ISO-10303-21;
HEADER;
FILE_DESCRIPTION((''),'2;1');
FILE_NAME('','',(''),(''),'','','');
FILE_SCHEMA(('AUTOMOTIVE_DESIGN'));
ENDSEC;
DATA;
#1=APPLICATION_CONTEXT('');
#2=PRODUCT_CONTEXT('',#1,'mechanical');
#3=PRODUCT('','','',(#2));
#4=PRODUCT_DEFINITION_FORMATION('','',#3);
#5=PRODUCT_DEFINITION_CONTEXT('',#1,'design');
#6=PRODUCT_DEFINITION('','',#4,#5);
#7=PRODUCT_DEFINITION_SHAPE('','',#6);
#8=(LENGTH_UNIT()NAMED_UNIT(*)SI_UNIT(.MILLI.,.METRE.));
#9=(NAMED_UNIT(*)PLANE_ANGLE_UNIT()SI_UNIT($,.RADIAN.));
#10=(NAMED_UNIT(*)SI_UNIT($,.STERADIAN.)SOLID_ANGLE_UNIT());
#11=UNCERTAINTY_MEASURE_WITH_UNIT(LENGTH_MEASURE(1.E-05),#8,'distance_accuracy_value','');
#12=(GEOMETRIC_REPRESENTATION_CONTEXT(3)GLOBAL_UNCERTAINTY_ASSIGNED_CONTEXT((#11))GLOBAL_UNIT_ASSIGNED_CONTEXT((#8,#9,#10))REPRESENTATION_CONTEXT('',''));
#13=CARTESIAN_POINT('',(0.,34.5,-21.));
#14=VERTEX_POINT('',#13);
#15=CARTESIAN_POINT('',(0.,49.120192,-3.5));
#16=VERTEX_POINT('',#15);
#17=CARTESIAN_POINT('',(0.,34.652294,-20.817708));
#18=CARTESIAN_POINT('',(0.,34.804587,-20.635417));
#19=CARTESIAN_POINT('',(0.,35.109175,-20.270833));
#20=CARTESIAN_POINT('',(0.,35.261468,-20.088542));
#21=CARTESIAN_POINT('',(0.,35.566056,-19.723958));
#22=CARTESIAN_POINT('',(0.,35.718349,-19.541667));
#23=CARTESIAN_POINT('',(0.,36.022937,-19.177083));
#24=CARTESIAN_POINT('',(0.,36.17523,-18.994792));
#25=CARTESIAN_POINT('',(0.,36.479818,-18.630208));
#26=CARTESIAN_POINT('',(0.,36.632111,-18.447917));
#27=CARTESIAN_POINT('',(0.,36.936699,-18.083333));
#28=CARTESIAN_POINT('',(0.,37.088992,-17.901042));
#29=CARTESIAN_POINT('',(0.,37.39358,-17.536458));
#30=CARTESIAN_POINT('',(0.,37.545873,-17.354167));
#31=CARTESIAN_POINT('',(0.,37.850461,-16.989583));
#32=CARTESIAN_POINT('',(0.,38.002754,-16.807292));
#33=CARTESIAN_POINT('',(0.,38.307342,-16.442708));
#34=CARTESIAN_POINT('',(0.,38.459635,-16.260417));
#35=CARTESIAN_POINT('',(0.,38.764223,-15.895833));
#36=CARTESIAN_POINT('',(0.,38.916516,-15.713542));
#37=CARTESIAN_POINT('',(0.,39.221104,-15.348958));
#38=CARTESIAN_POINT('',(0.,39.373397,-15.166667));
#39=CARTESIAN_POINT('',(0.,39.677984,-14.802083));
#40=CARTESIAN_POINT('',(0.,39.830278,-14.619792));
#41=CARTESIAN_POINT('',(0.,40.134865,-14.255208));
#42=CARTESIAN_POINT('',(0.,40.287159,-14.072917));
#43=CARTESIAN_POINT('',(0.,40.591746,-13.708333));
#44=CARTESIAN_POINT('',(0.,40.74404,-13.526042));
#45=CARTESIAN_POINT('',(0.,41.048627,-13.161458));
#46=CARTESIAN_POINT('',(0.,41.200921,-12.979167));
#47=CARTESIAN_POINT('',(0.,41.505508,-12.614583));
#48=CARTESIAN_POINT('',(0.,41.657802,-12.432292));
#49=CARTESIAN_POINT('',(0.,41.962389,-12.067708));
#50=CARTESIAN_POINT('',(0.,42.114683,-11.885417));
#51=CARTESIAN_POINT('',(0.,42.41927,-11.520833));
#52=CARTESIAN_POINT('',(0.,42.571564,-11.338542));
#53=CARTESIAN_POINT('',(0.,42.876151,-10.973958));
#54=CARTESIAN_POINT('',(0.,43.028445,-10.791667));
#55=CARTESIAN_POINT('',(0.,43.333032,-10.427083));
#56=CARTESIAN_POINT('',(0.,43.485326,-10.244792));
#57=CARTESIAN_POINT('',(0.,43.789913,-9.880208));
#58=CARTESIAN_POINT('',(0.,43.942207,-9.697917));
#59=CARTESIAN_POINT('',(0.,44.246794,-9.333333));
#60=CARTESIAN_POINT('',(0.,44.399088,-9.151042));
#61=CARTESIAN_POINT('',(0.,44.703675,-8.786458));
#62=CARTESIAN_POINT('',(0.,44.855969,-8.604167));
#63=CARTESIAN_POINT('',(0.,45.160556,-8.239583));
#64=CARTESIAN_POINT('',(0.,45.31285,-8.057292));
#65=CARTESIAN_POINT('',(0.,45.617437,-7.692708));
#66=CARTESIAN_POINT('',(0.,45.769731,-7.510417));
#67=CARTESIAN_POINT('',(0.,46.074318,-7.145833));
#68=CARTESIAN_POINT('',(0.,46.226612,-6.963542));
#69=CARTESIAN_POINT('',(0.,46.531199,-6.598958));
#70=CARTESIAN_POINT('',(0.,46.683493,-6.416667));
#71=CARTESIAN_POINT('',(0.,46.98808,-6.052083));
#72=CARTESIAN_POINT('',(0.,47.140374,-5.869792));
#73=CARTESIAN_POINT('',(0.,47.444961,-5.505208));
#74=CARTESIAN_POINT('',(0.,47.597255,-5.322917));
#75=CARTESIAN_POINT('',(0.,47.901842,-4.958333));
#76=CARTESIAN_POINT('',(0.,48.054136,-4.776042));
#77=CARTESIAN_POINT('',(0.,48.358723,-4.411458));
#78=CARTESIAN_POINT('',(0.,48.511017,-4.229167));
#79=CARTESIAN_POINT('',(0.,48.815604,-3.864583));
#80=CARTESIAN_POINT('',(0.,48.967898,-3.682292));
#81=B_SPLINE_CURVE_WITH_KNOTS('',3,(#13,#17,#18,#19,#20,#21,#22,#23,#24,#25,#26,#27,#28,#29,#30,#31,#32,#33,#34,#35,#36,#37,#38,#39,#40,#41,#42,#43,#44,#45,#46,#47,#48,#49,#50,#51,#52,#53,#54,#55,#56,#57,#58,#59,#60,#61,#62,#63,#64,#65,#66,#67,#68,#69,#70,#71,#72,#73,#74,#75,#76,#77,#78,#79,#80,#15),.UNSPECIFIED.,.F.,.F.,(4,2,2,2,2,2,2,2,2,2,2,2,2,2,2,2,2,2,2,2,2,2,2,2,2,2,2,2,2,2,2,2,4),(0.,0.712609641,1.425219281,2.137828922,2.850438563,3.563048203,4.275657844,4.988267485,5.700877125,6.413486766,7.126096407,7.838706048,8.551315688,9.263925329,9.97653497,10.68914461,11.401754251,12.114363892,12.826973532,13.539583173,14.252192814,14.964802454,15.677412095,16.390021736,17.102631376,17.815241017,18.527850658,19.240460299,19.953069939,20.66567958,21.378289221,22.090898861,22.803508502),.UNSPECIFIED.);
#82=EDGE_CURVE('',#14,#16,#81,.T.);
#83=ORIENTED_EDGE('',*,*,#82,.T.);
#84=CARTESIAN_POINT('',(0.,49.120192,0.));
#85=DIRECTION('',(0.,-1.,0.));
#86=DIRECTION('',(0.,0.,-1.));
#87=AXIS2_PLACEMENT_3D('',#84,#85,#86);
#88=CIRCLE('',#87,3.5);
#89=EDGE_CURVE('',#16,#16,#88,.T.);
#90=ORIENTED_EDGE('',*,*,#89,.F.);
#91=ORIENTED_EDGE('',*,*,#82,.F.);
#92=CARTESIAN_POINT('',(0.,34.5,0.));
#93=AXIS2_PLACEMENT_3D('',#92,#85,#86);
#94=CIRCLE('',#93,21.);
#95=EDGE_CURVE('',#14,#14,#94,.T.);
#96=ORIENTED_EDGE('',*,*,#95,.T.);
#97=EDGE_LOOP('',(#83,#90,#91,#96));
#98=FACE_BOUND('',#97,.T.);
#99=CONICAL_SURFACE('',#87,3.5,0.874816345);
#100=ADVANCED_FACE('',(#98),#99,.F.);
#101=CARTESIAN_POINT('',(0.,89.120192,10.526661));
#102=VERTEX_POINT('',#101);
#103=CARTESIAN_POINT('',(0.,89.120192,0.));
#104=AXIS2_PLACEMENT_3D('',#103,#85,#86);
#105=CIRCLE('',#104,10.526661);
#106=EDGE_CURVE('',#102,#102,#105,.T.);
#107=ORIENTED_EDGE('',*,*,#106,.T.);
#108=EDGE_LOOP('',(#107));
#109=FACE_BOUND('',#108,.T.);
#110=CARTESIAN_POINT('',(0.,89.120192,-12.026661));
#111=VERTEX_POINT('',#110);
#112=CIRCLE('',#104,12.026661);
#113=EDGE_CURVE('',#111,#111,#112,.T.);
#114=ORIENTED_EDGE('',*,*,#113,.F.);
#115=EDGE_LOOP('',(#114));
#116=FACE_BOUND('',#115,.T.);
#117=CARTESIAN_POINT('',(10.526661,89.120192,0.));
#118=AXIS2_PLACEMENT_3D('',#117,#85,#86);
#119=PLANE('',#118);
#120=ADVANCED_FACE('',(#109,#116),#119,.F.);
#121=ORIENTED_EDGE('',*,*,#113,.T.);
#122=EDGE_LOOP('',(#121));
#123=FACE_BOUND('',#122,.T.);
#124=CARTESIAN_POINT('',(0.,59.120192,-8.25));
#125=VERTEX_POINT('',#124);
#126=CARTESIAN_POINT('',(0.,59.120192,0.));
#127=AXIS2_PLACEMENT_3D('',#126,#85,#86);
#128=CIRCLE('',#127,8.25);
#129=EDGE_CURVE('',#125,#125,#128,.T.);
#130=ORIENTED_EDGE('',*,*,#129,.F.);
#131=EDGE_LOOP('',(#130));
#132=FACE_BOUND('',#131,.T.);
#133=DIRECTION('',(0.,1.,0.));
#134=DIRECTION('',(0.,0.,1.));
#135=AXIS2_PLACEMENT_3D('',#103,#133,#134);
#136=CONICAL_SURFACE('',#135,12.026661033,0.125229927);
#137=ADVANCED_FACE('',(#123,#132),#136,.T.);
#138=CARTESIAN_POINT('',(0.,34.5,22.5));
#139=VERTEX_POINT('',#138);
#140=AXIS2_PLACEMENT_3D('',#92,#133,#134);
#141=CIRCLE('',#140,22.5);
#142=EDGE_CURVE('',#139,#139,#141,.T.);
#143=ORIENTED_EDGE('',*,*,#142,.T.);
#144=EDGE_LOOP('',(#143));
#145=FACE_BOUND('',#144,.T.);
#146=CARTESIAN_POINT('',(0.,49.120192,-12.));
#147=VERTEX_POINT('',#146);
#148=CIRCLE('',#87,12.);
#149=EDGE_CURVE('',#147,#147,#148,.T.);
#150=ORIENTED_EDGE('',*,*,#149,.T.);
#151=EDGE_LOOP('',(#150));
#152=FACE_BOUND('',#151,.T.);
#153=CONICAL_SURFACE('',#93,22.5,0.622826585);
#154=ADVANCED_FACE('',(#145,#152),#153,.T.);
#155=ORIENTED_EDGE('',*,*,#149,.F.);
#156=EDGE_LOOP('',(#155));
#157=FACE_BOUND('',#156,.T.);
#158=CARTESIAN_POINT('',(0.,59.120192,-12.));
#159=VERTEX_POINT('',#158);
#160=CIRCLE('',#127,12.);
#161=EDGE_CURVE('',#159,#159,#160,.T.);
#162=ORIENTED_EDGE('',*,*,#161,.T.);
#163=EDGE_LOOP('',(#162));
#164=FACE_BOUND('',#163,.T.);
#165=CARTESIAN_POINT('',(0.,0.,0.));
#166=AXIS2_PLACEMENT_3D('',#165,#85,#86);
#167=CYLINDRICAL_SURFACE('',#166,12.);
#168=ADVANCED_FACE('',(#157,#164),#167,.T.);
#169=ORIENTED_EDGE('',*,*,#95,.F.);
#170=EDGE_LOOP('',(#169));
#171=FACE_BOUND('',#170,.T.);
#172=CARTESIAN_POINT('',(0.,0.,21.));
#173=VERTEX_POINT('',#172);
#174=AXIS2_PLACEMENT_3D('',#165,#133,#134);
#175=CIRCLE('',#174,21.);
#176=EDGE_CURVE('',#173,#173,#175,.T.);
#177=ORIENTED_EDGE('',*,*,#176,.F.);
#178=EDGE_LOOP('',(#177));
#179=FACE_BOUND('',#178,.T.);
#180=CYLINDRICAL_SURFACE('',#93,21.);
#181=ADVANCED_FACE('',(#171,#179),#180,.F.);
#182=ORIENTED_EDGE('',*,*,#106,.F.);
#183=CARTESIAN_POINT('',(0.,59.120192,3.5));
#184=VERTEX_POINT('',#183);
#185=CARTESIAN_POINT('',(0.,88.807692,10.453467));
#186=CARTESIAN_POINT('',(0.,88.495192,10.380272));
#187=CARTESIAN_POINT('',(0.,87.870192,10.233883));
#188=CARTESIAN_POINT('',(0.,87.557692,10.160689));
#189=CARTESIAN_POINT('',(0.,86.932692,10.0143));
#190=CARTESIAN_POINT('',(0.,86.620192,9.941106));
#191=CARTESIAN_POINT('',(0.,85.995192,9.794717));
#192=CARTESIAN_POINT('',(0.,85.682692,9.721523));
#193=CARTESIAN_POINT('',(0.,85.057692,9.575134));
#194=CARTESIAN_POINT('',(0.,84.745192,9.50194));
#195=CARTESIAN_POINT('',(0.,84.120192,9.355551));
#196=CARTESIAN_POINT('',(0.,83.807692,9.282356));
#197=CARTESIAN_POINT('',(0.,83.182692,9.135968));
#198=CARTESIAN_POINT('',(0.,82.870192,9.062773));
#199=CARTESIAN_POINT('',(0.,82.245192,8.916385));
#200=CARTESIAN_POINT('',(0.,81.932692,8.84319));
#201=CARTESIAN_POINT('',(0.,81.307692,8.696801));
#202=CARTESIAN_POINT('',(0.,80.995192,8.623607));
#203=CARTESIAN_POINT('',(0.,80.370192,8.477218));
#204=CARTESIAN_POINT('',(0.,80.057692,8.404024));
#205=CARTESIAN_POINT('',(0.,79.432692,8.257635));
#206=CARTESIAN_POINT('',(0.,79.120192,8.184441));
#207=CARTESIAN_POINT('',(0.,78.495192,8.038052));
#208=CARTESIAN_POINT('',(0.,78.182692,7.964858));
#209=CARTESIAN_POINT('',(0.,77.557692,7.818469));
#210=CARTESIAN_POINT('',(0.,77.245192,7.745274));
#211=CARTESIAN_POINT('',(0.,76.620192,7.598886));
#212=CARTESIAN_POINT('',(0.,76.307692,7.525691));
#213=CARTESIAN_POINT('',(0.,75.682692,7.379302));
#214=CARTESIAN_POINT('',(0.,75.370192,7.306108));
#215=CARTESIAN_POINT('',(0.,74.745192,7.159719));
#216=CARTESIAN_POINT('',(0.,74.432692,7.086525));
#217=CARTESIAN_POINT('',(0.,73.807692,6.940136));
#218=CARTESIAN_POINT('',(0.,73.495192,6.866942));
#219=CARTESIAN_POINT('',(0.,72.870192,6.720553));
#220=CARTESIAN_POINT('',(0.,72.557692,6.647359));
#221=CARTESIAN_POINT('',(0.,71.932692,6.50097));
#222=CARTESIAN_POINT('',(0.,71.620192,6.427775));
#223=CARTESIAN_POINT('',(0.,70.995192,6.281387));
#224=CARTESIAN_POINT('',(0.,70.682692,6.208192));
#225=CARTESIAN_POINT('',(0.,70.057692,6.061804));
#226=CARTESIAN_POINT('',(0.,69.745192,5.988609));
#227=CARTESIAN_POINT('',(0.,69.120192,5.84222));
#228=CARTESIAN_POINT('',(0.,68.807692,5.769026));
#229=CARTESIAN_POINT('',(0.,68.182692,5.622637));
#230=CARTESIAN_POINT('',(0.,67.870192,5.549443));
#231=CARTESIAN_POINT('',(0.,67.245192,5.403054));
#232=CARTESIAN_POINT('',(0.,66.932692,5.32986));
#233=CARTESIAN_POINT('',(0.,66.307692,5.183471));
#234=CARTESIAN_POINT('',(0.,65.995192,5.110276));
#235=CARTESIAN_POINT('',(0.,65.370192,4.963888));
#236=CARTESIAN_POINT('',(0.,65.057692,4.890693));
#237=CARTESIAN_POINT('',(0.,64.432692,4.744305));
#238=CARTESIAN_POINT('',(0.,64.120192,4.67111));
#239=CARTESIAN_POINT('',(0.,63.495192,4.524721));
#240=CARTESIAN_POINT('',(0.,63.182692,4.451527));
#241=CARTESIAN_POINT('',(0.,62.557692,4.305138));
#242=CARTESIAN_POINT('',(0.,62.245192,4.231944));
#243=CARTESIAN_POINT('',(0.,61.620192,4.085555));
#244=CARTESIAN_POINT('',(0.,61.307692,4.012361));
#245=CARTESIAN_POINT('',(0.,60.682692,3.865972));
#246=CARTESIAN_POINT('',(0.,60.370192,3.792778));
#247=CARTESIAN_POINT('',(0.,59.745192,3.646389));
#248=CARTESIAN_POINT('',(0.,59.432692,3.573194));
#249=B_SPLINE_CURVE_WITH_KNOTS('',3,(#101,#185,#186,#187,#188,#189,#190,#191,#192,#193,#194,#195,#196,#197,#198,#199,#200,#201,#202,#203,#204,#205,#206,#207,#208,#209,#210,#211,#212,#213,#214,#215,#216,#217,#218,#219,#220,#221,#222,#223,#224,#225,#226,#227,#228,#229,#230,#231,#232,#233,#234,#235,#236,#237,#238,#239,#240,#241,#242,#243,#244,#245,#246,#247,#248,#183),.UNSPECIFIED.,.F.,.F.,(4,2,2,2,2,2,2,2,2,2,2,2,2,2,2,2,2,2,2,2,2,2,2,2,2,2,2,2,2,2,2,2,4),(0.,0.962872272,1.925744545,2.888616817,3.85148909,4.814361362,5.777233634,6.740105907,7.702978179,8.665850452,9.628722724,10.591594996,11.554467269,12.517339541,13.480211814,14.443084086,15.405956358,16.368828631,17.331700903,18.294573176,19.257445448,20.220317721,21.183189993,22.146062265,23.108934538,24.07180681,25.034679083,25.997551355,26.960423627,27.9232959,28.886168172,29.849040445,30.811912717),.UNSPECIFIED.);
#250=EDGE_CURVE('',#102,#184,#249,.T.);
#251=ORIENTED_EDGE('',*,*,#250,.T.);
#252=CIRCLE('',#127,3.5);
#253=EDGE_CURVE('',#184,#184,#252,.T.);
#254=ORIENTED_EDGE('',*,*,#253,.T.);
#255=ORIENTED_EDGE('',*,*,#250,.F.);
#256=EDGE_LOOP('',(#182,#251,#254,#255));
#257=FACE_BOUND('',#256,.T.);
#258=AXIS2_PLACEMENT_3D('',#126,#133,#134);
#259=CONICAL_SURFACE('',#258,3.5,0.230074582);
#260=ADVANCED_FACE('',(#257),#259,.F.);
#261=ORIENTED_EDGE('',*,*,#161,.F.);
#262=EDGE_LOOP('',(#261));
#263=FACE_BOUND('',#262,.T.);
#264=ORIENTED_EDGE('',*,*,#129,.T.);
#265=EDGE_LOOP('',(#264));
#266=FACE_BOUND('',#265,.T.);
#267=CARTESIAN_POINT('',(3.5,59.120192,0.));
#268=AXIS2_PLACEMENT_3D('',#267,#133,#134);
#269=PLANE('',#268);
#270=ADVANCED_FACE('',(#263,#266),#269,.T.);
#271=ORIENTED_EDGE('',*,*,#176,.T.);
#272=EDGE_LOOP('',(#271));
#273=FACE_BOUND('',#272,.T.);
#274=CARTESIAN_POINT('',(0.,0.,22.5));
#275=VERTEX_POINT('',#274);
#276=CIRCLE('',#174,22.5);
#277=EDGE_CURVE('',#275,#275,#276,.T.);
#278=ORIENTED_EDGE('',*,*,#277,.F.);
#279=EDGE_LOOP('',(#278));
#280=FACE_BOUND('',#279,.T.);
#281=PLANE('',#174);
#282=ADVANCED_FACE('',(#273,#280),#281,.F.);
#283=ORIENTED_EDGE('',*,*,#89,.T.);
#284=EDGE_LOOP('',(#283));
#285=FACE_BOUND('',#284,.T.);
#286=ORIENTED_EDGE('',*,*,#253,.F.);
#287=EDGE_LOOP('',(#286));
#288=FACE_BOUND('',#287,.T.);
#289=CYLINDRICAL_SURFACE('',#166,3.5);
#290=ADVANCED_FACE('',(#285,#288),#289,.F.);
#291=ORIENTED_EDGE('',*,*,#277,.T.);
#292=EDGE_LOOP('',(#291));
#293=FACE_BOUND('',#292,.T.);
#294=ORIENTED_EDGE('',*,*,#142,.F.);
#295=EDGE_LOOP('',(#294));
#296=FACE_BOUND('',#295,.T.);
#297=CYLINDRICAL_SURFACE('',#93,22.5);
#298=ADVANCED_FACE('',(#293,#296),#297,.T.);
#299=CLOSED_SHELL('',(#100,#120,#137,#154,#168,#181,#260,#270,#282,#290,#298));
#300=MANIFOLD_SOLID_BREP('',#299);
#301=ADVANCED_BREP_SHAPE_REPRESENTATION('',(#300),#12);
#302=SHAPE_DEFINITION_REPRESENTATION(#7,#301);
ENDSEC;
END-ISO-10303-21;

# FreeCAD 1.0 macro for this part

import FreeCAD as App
import Part
import Sketcher

V = App.Vector
Q = App.Units.Quantity


def add_polygon(sketch, points):
    """Adds a closed chain of lines whose ends are joined by coincident constraints."""
    first, n = sketch.GeometryCount, len(points)
    for a, b in zip(points, points[1:] + points[:1]):
        sketch.addGeometry(Part.LineSegment(App.Vector(*a, 0), App.Vector(*b, 0)), False)
    for i in range(n):
        sketch.addConstraint(Sketcher.Constraint("Coincident", first + i, 2, first + (i + 1) % n, 1))

doc = App.newDocument("Part")
params = doc.addObject("Spreadsheet::Sheet", "Params")
for row, (alias, value) in enumerate([
    ("sketch1_diameter", "45 mm"),
    ("sketch1_diameter2", "42 mm"),
    ("pad1_length", "34.5 mm"),
    ("sketch2_height", "10 mm"),
    ("sketch2_length", "18 mm"),
    ("sketch2_width", "8.5 mm"),
    ("sketch2_width2", "1.5 mm"),
    ("revolution_angle", "360 deg"),
    ("sketch3_width", "1.5 mm"),
    ("sketch3_width2", "4.75 mm"),
    ("revolution2_angle", "360 deg"),
], start=1):
    params.set(f"A{row}", alias)
    params.set(f"B{row}", "=" + value)
    params.setAlias(f"B{row}", alias)

body = doc.addObject("PartDesign::Body", "Body")

sketch1 = body.newObject("Sketcher::SketchObject", "Sketch")
sketch1.AttachmentSupport = (doc.getObject("XZ_Plane"), [""])
sketch1.MapMode = "FlatFace"
sketch1.addGeometry(Part.Circle(V(0, 0, 0), V(0, 0, 1), 22), False)
sketch1.addGeometry(Part.Circle(V(0, 0, 0), V(0, 0, 1), 21), False)
sketch1.addConstraint(Sketcher.Constraint("Coincident", 0, 3, -1, 1))
sketch1.addConstraint(Sketcher.Constraint("Coincident", 1, 3, -1, 1))
sketch1.addConstraint(Sketcher.Constraint("Diameter", 0, Q("45 mm")))
sketch1.addConstraint(Sketcher.Constraint("Diameter", 1, Q("42 mm")))
sketch1.setExpression("Constraints[2]", "Params.sketch1_diameter")
sketch1.setExpression("Constraints[3]", "Params.sketch1_diameter2")
pad1 = body.newObject("PartDesign::Pad", "Pad")
pad1.Profile = sketch1
pad1.setExpression("Length", "Params.pad1_length")
pad1.Reversed = True

sketch2 = body.newObject("Sketcher::SketchObject", "Sketch001")
sketch2.AttachmentSupport = (doc.getObject("XY_Plane"), [""])
sketch2.MapMode = "FlatFace"
add_polygon(sketch2, [(22.5, 34.5), (12, 49.1), (12, 59.1), (3.5, 59.1), (3.5, 49.1), (21, 34.5)])
sketch2.addConstraint(Sketcher.Constraint("Vertical", 1))
sketch2.addConstraint(Sketcher.Constraint("Horizontal", 2))
sketch2.addConstraint(Sketcher.Constraint("Vertical", 3))
sketch2.addConstraint(Sketcher.Constraint("Horizontal", 5))
sketch2.addConstraint(Sketcher.Constraint("Horizontal", 0, 2, 3, 2))
sketch2.addConstraint(Sketcher.Constraint("DistanceY", 1, 1, 1, 2, Q("10 mm")))
sketch2.addConstraint(Sketcher.Constraint("Distance", 0, Q("18 mm")))
sketch2.addConstraint(Sketcher.Constraint("DistanceX", 2, 2, 2, 1, Q("8.5 mm")))
sketch2.addConstraint(Sketcher.Constraint("DistanceX", 5, 1, 5, 2, Q("1.5 mm")))
sketch2.addConstraint(Sketcher.Constraint("DistanceX", -1, 1, 0, 2, Q("12 mm")))
sketch2.addConstraint(Sketcher.Constraint("DistanceX", -1, 1, 4, 2, Q("21 mm")))
sketch2.addConstraint(Sketcher.Constraint("DistanceY", -1, 1, 4, 2, Q("34.5 mm")))
sketch2.setExpression("Constraints[11]", "Params.sketch2_height")
sketch2.setExpression("Constraints[12]", "Params.sketch2_length")
sketch2.setExpression("Constraints[13]", "Params.sketch2_width")
sketch2.setExpression("Constraints[14]", "Params.sketch2_width2")
revolution = body.newObject("PartDesign::Revolution", "Revolution")
revolution.Profile = sketch2
revolution.ReferenceAxis = (sketch2, ["V_Axis"])
revolution.setExpression("Angle", "Params.revolution_angle")

sketch3 = body.newObject("Sketcher::SketchObject", "Sketch002")
sketch3.AttachmentSupport = (doc.getObject("XY_Plane"), [""])
sketch3.MapMode = "FlatFace"
add_polygon(sketch3, [(3.5, 59.1), (10.5, 89.1), (12, 89.1), (8.2, 59.1)])
sketch3.addConstraint(Sketcher.Constraint("Horizontal", 1))
sketch3.addConstraint(Sketcher.Constraint("Horizontal", 3))
sketch3.addConstraint(Sketcher.Constraint("DistanceX", 1, 1, 1, 2, Q("1.5 mm")))
sketch3.addConstraint(Sketcher.Constraint("DistanceY", 2, 2, 0, 2, Q("30 mm")))
sketch3.addConstraint(Sketcher.Constraint("DistanceX", 3, 2, 3, 1, Q("4.75 mm")))
sketch3.addConstraint(Sketcher.Constraint("DistanceX", -1, 1, 3, 2, Q("3.5 mm")))
sketch3.addConstraint(Sketcher.Constraint("DistanceX", -1, 1, 0, 2, Q("10.526661 mm")))
sketch3.addConstraint(Sketcher.Constraint("DistanceY", -1, 1, 0, 2, Q("89.120192 mm")))
sketch3.setExpression("Constraints[6]", "Params.sketch3_width")
sketch3.setExpression("Constraints[8]", "Params.sketch3_width2")
revolution2 = body.newObject("PartDesign::Revolution", "Revolution001")
revolution2.Profile = sketch3
revolution2.ReferenceAxis = (sketch3, ["V_Axis"])
revolution2.setExpression("Angle", "Params.revolution2_angle")

doc.recompute()
